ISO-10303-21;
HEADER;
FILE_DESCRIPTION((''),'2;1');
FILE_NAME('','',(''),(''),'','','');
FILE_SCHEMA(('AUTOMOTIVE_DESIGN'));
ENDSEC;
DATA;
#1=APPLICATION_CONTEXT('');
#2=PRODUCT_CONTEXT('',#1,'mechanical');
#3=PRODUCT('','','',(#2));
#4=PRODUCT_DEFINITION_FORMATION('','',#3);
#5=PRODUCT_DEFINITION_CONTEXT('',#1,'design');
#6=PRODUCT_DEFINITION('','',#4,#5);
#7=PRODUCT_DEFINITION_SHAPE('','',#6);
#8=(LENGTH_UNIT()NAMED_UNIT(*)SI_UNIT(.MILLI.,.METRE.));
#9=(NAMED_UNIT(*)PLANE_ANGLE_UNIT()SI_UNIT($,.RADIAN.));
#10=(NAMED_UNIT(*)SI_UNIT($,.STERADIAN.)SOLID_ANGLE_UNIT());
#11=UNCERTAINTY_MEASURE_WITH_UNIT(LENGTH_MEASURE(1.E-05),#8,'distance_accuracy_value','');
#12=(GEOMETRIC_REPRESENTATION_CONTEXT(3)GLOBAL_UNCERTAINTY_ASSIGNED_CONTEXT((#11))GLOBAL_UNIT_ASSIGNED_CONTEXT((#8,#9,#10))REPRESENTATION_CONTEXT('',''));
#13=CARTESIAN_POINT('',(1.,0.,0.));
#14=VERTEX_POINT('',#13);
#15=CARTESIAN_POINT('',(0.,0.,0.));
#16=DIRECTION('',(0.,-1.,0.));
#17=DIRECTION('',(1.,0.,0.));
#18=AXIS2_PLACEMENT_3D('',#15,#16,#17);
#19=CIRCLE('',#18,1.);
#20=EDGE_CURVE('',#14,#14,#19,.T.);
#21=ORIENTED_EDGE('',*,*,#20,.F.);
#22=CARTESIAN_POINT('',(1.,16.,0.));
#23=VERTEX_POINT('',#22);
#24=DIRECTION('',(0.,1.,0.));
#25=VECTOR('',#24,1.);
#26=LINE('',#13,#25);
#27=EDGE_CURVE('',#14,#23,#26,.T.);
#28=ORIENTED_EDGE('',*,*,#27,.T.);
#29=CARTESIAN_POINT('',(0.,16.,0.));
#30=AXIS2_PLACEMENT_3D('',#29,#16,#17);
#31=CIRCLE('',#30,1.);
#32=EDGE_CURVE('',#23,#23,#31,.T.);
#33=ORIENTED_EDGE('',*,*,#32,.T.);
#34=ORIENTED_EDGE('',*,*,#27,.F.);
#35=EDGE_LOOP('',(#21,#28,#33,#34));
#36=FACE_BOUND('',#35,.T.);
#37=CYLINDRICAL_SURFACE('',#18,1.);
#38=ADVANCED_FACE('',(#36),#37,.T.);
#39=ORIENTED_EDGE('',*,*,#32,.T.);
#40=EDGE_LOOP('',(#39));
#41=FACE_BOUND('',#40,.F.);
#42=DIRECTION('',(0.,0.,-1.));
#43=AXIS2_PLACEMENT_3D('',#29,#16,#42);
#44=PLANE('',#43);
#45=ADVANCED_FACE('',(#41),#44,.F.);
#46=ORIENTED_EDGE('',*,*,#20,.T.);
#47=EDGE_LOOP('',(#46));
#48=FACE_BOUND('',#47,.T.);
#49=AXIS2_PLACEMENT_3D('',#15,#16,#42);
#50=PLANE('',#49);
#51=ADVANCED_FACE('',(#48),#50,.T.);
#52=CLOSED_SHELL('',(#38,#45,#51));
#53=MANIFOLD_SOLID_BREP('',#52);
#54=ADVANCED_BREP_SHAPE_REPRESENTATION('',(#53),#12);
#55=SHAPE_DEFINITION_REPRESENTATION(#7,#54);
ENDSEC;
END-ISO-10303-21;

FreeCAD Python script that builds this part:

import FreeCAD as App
import Part
import Sketcher

V = App.Vector
Q = App.Units.Quantity

doc = App.newDocument("Part")
body = doc.addObject("PartDesign::Body", "Body")

# Sketch on XZ plane
sketch1 = body.newObject("Sketcher::SketchObject", "Sketch")
sketch1.AttachmentSupport = (doc.getObject("XZ_Plane"), [""])
sketch1.MapMode = "FlatFace"
sketch1.addGeometry(Part.Circle(V(0, 0, 0), V(0, 0, 1), 1), False)
sketch1.addConstraint(Sketcher.Constraint("Coincident", 0, 3, -1, 1))
sketch1.addConstraint(Sketcher.Constraint("Diameter", 0, Q("2 mm")))
pad1 = body.newObject("PartDesign::Pad", "Pad")
pad1.Profile = sketch1
pad1.Length = 16
pad1.Reversed = True

doc.recompute()
